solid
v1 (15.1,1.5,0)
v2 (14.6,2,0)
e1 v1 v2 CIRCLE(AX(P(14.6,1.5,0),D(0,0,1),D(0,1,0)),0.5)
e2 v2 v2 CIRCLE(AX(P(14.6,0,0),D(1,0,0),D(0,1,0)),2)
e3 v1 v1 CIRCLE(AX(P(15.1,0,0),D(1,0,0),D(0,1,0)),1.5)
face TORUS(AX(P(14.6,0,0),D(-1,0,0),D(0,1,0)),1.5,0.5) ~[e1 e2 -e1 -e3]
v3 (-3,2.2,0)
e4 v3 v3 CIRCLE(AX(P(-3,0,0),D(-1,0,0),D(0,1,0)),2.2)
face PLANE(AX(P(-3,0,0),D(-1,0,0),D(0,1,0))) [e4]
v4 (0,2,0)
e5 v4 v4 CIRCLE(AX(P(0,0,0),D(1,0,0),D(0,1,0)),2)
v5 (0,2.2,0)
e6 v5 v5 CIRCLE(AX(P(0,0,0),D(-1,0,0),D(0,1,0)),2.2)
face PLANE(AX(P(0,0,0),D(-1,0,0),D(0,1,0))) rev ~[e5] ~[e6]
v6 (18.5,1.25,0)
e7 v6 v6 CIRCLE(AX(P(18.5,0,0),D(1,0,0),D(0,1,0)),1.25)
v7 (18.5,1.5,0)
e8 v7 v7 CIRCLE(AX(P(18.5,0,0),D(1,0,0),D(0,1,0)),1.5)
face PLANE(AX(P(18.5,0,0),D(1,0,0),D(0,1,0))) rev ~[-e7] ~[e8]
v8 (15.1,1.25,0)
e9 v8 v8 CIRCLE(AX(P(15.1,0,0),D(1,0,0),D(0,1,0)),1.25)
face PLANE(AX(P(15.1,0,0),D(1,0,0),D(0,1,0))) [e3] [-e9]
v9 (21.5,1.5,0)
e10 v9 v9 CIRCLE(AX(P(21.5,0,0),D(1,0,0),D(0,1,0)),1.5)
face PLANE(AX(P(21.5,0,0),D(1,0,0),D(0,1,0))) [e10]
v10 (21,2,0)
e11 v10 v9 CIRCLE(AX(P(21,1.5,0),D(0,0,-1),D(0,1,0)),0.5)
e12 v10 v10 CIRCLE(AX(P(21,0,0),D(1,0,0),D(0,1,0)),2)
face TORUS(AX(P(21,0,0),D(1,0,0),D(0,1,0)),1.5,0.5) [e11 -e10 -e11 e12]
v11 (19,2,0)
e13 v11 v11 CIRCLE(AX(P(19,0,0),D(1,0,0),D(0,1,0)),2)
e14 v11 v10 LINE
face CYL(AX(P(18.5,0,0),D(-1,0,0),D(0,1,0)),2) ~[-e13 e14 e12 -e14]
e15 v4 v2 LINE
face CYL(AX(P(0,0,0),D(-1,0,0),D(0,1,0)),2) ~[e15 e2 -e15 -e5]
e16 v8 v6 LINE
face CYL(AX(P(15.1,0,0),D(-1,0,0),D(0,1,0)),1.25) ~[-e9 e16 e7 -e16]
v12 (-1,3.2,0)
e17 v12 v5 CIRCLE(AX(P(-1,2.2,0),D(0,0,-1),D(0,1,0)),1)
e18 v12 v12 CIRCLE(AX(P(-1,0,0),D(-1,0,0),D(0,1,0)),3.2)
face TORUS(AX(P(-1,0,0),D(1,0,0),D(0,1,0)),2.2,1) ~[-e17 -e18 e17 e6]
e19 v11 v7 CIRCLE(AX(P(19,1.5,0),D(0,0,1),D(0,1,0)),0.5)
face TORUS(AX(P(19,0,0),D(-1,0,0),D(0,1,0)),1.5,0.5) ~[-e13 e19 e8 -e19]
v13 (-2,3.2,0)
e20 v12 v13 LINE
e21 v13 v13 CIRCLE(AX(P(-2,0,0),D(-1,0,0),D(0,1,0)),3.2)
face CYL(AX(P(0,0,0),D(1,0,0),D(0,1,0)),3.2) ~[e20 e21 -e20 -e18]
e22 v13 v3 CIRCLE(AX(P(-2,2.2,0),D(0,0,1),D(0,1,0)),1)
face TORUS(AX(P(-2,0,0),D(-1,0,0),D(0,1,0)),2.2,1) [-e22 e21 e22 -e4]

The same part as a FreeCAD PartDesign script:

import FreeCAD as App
import Part
import Sketcher
from FreeCAD import Vector
Q = App.Units.Quantity


def edges_at(feature, points):
    """Names of the edges that pass closest to the given points."""
    edges = feature.Shape.Edges
    near = lambda p: min(range(len(edges)), key=lambda i: edges[i].distToShape(Part.Vertex(*p))[0])
    return sorted({f"Edge{near(p) + 1}" for p in points})

doc = App.newDocument("Part")
body = doc.addObject("PartDesign::Body", "Body")

# Sketch on YZ plane
sketch1 = body.newObject("Sketcher::SketchObject", "Sketch")
sketch1.AttachmentSupport = (doc.getObject("YZ_Plane"), [""])
sketch1.MapMode = "FlatFace"
sketch1.addGeometry(Part.Circle(Vector(0, 0, 0), Vector(0, 0, 1), 2), False)
sketch1.addConstraint(Sketcher.Constraint("Coincident", 0, 3, -1, 1))
sketch1.addConstraint(Sketcher.Constraint("Diameter", 0, Q("4 mm")))
pad1 = body.newObject("PartDesign::Pad", "Pad")
pad1.Profile = sketch1
pad1.Length = 15.1

# Sketch on YZ plane
sketch2 = body.newObject("Sketcher::SketchObject", "Sketch001")
sketch2.AttachmentSupport = (doc.getObject("YZ_Plane"), [""])
sketch2.MapMode = "FlatFace"
sketch2.addGeometry(Part.Circle(Vector(0, 0, 0), Vector(0, 0, 1), 3.2), False)
sketch2.addConstraint(Sketcher.Constraint("Coincident", 0, 3, -1, 1))
sketch2.addConstraint(Sketcher.Constraint("Diameter", 0, Q("6.4 mm")))
pad2 = body.newObject("PartDesign::Pad", "Pad001")
pad2.Profile = sketch2
pad2.Length = 3
pad2.Reversed = True

# Sketch on YZ plane
sketch3 = body.newObject("Sketcher::SketchObject", "Sketch002")
sketch3.AttachmentSupport = (doc.getObject("YZ_Plane"), [""])
sketch3.MapMode = "FlatFace"
sketch3.AttachmentOffset = App.Placement(Vector(0, 0, 15.1), App.Rotation())
sketch3.addGeometry(Part.Circle(Vector(0, 0, 0), Vector(0, 0, 1), 1.25), False)
sketch3.addConstraint(Sketcher.Constraint("Coincident", 0, 3, -1, 1))
sketch3.addConstraint(Sketcher.Constraint("Diameter", 0, Q("2.5 mm")))
pad3 = body.newObject("PartDesign::Pad", "Pad002")
pad3.Profile = sketch3
pad3.Length = 3.4

# Sketch on YZ plane
sketch4 = body.newObject("Sketcher::SketchObject", "Sketch003")
sketch4.AttachmentSupport = (doc.getObject("YZ_Plane"), [""])
sketch4.MapMode = "FlatFace"
sketch4.AttachmentOffset = App.Placement(Vector(0, 0, 18.5), App.Rotation())
sketch4.addGeometry(Part.Circle(Vector(0, 0, 0), Vector(0, 0, 1), 2), False)
sketch4.addConstraint(Sketcher.Constraint("Coincident", 0, 3, -1, 1))
sketch4.addConstraint(Sketcher.Constraint("Diameter", 0, Q("4 mm")))
pad4 = body.newObject("PartDesign::Pad", "Pad003")
pad4.Profile = sketch4
pad4.Length = 3
doc.recompute()

fillet = body.newObject("PartDesign::Fillet", "Fillet")
fillet.Base = (pad4, edges_at(pad4, [(18.5, -2, 0)]))
fillet.Radius = 0.5
doc.recompute()

fillet2 = body.newObject("PartDesign::Fillet", "Fillet001")
fillet2.Base = (fillet, edges_at(fillet, [(21.5, -2, 0)]))
fillet2.Radius = 0.5
doc.recompute()

fillet3 = body.newObject("PartDesign::Fillet", "Fillet002")
fillet3.Base = (fillet2, edges_at(fillet2, [(15.1, -2, 0)]))
fillet3.Radius = 0.5
doc.recompute()

fillet4 = body.newObject("PartDesign::Fillet", "Fillet003")
fillet4.Base = (fillet3, edges_at(fillet3, [(-3, -3.2, 0)]))
fillet4.Radius = 1
doc.recompute()

fillet5 = body.newObject("PartDesign::Fillet", "Fillet004")
fillet5.Base = (fillet4, edges_at(fillet4, [(0, -3.2, 0)]))
fillet5.Radius = 1

doc.recompute()
